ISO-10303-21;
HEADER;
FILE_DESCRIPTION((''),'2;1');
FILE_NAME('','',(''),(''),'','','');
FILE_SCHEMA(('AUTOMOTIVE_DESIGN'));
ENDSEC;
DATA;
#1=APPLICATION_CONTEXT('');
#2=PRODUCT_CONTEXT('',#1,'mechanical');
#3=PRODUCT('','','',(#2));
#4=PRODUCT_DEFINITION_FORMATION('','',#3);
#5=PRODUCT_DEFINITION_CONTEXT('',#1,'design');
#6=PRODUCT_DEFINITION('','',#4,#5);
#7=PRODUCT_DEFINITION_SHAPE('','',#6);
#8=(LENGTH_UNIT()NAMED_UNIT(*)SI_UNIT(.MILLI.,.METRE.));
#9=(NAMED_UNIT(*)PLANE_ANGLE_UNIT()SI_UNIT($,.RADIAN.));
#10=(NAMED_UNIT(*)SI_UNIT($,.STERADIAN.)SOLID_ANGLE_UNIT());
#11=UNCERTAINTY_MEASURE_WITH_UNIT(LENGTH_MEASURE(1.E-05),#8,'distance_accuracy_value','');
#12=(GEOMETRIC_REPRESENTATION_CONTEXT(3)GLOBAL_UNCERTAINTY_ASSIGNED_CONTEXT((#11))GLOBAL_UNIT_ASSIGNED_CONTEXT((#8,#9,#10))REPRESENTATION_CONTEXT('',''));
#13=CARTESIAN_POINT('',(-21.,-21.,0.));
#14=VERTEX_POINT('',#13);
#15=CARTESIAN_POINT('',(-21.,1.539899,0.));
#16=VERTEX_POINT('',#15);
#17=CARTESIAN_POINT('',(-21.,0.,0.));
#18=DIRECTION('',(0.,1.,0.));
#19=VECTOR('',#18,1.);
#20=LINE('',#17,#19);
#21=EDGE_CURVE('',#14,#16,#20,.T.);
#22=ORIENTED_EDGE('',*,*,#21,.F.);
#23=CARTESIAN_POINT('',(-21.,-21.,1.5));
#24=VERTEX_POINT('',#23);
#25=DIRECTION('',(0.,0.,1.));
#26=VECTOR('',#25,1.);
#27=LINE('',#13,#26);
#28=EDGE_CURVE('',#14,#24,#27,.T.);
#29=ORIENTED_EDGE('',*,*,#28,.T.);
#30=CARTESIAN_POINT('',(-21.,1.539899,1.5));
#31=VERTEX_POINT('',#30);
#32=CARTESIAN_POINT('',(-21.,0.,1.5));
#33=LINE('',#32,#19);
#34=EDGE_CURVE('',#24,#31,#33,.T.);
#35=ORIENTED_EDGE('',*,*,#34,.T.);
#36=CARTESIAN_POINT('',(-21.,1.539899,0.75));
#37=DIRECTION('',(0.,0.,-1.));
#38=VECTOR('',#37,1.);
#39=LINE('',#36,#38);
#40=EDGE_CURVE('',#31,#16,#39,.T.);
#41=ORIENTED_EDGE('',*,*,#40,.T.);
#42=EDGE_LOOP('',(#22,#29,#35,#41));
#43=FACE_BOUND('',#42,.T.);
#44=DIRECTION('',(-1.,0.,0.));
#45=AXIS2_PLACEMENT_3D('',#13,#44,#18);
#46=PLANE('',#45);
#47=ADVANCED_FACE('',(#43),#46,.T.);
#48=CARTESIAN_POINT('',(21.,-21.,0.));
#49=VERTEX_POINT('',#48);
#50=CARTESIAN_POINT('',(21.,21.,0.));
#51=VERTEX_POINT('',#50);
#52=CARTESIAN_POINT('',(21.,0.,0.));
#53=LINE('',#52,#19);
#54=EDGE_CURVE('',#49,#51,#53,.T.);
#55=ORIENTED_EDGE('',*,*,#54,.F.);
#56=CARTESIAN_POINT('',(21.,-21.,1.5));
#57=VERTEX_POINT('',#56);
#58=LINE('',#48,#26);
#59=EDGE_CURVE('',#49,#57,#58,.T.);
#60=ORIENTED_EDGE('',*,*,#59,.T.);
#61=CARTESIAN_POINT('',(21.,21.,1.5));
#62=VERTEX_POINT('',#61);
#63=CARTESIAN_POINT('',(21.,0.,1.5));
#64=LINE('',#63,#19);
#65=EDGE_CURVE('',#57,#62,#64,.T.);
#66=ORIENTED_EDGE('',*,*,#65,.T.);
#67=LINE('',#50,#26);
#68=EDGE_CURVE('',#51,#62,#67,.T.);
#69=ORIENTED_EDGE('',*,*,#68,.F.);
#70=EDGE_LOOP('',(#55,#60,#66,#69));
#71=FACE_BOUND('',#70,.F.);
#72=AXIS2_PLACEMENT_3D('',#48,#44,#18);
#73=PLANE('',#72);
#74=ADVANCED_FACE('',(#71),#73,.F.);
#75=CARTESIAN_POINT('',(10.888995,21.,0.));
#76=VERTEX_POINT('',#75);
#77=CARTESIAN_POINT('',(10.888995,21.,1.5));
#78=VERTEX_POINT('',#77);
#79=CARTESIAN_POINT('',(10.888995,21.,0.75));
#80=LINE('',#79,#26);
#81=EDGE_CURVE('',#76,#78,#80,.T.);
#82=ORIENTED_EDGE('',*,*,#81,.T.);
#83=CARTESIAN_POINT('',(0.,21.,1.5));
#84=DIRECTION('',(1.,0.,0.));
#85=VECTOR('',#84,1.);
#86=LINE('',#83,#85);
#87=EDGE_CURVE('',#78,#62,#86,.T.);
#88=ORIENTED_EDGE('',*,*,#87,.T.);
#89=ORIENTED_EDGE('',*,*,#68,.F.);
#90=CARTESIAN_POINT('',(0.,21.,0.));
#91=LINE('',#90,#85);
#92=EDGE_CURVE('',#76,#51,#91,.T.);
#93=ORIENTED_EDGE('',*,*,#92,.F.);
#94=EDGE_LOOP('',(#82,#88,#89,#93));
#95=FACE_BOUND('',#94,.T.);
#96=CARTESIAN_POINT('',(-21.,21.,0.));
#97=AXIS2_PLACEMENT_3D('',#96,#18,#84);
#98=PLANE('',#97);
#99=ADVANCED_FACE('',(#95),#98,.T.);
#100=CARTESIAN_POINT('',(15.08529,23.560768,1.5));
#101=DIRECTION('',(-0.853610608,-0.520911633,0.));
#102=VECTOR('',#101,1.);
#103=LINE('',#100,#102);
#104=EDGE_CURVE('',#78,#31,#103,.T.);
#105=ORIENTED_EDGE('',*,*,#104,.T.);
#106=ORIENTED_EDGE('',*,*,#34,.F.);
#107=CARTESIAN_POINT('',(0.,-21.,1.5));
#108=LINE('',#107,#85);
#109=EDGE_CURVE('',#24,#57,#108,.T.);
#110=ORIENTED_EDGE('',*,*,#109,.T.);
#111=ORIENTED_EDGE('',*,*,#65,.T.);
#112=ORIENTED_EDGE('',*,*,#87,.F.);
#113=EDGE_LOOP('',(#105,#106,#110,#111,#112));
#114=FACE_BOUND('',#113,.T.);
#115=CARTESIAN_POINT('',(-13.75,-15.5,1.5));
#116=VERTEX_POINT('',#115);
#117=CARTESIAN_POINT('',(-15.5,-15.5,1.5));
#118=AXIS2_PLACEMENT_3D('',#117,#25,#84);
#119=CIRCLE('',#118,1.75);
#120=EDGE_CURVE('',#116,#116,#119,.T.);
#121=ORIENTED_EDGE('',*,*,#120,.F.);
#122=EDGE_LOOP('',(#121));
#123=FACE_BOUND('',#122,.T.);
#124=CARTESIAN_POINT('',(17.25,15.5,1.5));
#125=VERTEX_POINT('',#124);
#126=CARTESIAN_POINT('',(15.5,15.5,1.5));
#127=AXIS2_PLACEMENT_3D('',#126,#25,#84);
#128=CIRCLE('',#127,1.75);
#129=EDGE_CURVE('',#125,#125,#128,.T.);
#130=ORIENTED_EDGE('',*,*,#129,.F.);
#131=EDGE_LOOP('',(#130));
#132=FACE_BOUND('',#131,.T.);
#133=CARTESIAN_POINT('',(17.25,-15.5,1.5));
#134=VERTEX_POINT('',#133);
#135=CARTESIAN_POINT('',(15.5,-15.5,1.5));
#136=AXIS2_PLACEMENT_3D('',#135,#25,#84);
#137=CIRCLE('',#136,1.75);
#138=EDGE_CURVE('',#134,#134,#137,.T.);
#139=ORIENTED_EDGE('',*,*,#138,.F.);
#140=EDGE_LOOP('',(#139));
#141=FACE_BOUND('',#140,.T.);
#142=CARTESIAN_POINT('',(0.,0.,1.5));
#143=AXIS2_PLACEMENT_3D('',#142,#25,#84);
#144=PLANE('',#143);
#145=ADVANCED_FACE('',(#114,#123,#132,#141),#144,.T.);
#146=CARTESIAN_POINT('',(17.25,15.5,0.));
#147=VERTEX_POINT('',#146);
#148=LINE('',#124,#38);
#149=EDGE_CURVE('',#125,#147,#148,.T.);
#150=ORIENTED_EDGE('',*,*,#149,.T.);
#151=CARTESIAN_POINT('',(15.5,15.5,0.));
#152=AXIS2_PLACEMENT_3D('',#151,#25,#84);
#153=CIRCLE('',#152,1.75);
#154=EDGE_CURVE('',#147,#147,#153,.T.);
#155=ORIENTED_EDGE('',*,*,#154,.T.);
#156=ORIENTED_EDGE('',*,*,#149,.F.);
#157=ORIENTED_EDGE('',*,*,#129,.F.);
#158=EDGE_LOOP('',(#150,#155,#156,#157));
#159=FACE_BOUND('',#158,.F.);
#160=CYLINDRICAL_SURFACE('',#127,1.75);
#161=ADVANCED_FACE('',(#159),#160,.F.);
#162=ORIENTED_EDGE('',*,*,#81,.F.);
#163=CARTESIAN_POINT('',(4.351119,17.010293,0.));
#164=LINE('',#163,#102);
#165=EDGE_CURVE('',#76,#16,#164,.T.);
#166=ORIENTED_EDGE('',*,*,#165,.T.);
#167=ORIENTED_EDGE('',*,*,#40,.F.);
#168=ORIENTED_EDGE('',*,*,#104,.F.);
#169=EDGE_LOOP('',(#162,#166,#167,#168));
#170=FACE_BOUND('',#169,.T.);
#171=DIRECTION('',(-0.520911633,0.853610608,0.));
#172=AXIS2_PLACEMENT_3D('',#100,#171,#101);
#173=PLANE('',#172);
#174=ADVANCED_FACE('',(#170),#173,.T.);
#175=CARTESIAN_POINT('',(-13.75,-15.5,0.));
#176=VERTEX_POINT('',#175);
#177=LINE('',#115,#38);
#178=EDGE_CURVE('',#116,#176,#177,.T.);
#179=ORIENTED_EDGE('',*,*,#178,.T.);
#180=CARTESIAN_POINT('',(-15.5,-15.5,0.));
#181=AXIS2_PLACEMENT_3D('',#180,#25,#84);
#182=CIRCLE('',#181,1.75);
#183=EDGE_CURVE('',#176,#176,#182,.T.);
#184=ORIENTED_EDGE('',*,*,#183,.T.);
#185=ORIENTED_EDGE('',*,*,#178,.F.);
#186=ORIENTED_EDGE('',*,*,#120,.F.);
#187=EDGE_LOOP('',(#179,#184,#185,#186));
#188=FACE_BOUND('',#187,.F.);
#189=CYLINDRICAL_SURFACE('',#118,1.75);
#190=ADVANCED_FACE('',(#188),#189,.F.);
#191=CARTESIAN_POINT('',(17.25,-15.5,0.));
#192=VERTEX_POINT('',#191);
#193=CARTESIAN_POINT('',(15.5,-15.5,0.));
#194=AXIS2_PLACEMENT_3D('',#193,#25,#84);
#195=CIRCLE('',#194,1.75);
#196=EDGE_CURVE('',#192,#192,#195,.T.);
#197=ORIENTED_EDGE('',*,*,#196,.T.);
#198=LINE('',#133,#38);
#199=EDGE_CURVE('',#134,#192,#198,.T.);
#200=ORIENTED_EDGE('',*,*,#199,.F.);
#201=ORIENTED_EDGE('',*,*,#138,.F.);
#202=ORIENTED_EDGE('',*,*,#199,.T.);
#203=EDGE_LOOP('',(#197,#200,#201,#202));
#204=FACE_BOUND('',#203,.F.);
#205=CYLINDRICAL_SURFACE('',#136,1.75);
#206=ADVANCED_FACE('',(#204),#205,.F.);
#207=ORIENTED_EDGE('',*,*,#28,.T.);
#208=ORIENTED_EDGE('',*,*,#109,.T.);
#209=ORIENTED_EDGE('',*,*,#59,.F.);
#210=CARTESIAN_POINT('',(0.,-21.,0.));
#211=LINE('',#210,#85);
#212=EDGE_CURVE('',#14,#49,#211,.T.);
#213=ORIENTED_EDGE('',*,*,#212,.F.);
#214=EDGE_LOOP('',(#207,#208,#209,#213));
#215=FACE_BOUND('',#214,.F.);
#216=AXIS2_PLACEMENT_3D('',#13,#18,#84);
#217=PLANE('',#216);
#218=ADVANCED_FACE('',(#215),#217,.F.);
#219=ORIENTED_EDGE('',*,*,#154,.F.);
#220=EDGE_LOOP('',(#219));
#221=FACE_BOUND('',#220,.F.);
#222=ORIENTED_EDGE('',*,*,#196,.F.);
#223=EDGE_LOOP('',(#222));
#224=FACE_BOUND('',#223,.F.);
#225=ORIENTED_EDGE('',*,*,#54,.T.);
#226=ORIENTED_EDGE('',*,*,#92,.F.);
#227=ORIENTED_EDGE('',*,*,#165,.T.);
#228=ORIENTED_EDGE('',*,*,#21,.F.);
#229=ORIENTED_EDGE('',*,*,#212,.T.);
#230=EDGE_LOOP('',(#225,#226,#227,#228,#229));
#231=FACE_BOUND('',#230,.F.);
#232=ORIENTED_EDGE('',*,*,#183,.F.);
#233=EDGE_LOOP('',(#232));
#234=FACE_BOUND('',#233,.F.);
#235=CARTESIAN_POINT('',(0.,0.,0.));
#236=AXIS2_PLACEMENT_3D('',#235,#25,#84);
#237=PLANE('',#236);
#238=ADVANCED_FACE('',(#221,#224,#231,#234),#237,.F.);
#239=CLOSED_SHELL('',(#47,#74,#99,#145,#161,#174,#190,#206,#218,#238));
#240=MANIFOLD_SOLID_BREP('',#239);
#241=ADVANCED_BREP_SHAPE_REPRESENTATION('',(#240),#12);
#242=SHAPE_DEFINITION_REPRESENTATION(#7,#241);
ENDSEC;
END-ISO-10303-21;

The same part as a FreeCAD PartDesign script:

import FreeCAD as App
import Part
import Sketcher

V = App.Vector
Q = App.Units.Quantity


def add_polygon(sketch, points):
    """Adds a closed chain of lines whose ends are joined by coincident constraints."""
    first, n = sketch.GeometryCount, len(points)
    for a, b in zip(points, points[1:] + points[:1]):
        sketch.addGeometry(Part.LineSegment(App.Vector(*a, 0), App.Vector(*b, 0)), False)
    for i in range(n):
        sketch.addConstraint(Sketcher.Constraint("Coincident", first + i, 2, first + (i + 1) % n, 1))

doc = App.newDocument("Part")
params = doc.addObject("Spreadsheet::Sheet", "Params")
for row, (alias, value) in enumerate([
    ("sketch1_width", "42 mm"),
    ("pad1_length", "1.5 mm"),
    ("pocket1_length", "5 mm"),
    ("sketch3_diameter", "3.5 mm"),
    ("pocket2_length", "5 mm"),
], start=1):
    params.set(f"A{row}", alias)
    params.set(f"B{row}", "=" + value)
    params.setAlias(f"B{row}", alias)

body = doc.addObject("PartDesign::Body", "Body")

# Sketch on XY plane
sketch1 = body.newObject("Sketcher::SketchObject", "Sketch")
sketch1.AttachmentSupport = (doc.getObject("XY_Plane"), [""])
sketch1.MapMode = "FlatFace"
add_polygon(sketch1, [(-21, 21), (-21, -21), (21, -21), (21, 21)])  # lines 0-3
sketch1.addConstraint([
    Sketcher.Constraint("Vertical", 0),
    Sketcher.Constraint("Horizontal", 1),
    Sketcher.Constraint("Vertical", 2),
    Sketcher.Constraint("Horizontal", 3),
    Sketcher.Constraint("Symmetric", 0, 2, 2, 2, -1, 1),
    Sketcher.Constraint("Equal", 3, 0),
    Sketcher.Constraint("DistanceX", 1, 1, 1, 2, Q("42 mm")),
])
sketch1.setExpression("Constraints[10]", "Params.sketch1_width")
pad1 = body.newObject("PartDesign::Pad", "Pad")
pad1.Profile = sketch1
pad1.setExpression("Length", "Params.pad1_length")

# Sketch on XY plane
sketch2 = body.newObject("Sketcher::SketchObject", "Sketch001")
sketch2.AttachmentSupport = (doc.getObject("XY_Plane"), [""])
sketch2.MapMode = "FlatFace"
sketch2.AttachmentOffset = App.Placement(V(0, 0, 1.5), App.Rotation())
add_polygon(sketch2, [(-32.782513, -5.650321), (15.08529, 23.560768), (-32.782513, 34.968018)])  # lines 0-2
sketch2.addConstraint([
    Sketcher.Constraint("Vertical", 2),
    Sketcher.Constraint("DistanceY", 2, 2, 2, 1, Q("40.618339 mm")),
    Sketcher.Constraint("Distance", 0, Q("56.076861 mm")),
    Sketcher.Constraint("Distance", 1, Q("49.20825 mm")),
    Sketcher.Constraint("DistanceX", -1, 1, 0, 2, Q("15.08529 mm")),
    Sketcher.Constraint("DistanceY", 2, 2, -1, 1, Q("5.650321 mm")),
])
pocket1 = body.newObject("PartDesign::Pocket", "Pocket")
pocket1.Profile = sketch2
pocket1.setExpression("Length", "Params.pocket1_length")

# Sketch on XY plane
sketch3 = body.newObject("Sketcher::SketchObject", "Sketch002")
sketch3.AttachmentSupport = (doc.getObject("XY_Plane"), [""])
sketch3.MapMode = "FlatFace"
sketch3.AttachmentOffset = App.Placement(V(0, 0, 1.5), App.Rotation())
sketch3.addGeometry([
    Part.Circle(V(-15.5, 15.5, 0), V(0, 0, 1), 1.75),
    Part.Circle(V(15.5, -15.5, 0), V(0, 0, 1), 1.75),
    Part.Circle(V(15.5, 15.5, 0), V(0, 0, 1), 1.75),
    Part.Circle(V(-15.5, -15.5, 0), V(0, 0, 1), 1.75),
], False)
sketch3.addConstraint([
    Sketcher.Constraint("Equal", 0, 1),
    Sketcher.Constraint("Equal", 1, 2),
    Sketcher.Constraint("Equal", 2, 3),
    Sketcher.Constraint("Symmetric", 0, 3, 1, 3, -1, 1),
    Sketcher.Constraint("Symmetric", 2, 3, 3, 3, -1, 1),
    Sketcher.Constraint("Symmetric", 0, 3, 2, 3, -2),
    Sketcher.Constraint("Diameter", 0, Q("3.5 mm")),
    Sketcher.Constraint("DistanceX", 0, 3, 1, 3, Q("31 mm")),
    Sketcher.Constraint("DistanceY", 1, 3, 0, 3, Q("31 mm")),
])
sketch3.setExpression("Constraints[6]", "Params.sketch3_diameter")
pocket2 = body.newObject("PartDesign::Pocket", "Pocket001")
pocket2.Profile = sketch3
pocket2.setExpression("Length", "Params.pocket2_length")

doc.recompute()
